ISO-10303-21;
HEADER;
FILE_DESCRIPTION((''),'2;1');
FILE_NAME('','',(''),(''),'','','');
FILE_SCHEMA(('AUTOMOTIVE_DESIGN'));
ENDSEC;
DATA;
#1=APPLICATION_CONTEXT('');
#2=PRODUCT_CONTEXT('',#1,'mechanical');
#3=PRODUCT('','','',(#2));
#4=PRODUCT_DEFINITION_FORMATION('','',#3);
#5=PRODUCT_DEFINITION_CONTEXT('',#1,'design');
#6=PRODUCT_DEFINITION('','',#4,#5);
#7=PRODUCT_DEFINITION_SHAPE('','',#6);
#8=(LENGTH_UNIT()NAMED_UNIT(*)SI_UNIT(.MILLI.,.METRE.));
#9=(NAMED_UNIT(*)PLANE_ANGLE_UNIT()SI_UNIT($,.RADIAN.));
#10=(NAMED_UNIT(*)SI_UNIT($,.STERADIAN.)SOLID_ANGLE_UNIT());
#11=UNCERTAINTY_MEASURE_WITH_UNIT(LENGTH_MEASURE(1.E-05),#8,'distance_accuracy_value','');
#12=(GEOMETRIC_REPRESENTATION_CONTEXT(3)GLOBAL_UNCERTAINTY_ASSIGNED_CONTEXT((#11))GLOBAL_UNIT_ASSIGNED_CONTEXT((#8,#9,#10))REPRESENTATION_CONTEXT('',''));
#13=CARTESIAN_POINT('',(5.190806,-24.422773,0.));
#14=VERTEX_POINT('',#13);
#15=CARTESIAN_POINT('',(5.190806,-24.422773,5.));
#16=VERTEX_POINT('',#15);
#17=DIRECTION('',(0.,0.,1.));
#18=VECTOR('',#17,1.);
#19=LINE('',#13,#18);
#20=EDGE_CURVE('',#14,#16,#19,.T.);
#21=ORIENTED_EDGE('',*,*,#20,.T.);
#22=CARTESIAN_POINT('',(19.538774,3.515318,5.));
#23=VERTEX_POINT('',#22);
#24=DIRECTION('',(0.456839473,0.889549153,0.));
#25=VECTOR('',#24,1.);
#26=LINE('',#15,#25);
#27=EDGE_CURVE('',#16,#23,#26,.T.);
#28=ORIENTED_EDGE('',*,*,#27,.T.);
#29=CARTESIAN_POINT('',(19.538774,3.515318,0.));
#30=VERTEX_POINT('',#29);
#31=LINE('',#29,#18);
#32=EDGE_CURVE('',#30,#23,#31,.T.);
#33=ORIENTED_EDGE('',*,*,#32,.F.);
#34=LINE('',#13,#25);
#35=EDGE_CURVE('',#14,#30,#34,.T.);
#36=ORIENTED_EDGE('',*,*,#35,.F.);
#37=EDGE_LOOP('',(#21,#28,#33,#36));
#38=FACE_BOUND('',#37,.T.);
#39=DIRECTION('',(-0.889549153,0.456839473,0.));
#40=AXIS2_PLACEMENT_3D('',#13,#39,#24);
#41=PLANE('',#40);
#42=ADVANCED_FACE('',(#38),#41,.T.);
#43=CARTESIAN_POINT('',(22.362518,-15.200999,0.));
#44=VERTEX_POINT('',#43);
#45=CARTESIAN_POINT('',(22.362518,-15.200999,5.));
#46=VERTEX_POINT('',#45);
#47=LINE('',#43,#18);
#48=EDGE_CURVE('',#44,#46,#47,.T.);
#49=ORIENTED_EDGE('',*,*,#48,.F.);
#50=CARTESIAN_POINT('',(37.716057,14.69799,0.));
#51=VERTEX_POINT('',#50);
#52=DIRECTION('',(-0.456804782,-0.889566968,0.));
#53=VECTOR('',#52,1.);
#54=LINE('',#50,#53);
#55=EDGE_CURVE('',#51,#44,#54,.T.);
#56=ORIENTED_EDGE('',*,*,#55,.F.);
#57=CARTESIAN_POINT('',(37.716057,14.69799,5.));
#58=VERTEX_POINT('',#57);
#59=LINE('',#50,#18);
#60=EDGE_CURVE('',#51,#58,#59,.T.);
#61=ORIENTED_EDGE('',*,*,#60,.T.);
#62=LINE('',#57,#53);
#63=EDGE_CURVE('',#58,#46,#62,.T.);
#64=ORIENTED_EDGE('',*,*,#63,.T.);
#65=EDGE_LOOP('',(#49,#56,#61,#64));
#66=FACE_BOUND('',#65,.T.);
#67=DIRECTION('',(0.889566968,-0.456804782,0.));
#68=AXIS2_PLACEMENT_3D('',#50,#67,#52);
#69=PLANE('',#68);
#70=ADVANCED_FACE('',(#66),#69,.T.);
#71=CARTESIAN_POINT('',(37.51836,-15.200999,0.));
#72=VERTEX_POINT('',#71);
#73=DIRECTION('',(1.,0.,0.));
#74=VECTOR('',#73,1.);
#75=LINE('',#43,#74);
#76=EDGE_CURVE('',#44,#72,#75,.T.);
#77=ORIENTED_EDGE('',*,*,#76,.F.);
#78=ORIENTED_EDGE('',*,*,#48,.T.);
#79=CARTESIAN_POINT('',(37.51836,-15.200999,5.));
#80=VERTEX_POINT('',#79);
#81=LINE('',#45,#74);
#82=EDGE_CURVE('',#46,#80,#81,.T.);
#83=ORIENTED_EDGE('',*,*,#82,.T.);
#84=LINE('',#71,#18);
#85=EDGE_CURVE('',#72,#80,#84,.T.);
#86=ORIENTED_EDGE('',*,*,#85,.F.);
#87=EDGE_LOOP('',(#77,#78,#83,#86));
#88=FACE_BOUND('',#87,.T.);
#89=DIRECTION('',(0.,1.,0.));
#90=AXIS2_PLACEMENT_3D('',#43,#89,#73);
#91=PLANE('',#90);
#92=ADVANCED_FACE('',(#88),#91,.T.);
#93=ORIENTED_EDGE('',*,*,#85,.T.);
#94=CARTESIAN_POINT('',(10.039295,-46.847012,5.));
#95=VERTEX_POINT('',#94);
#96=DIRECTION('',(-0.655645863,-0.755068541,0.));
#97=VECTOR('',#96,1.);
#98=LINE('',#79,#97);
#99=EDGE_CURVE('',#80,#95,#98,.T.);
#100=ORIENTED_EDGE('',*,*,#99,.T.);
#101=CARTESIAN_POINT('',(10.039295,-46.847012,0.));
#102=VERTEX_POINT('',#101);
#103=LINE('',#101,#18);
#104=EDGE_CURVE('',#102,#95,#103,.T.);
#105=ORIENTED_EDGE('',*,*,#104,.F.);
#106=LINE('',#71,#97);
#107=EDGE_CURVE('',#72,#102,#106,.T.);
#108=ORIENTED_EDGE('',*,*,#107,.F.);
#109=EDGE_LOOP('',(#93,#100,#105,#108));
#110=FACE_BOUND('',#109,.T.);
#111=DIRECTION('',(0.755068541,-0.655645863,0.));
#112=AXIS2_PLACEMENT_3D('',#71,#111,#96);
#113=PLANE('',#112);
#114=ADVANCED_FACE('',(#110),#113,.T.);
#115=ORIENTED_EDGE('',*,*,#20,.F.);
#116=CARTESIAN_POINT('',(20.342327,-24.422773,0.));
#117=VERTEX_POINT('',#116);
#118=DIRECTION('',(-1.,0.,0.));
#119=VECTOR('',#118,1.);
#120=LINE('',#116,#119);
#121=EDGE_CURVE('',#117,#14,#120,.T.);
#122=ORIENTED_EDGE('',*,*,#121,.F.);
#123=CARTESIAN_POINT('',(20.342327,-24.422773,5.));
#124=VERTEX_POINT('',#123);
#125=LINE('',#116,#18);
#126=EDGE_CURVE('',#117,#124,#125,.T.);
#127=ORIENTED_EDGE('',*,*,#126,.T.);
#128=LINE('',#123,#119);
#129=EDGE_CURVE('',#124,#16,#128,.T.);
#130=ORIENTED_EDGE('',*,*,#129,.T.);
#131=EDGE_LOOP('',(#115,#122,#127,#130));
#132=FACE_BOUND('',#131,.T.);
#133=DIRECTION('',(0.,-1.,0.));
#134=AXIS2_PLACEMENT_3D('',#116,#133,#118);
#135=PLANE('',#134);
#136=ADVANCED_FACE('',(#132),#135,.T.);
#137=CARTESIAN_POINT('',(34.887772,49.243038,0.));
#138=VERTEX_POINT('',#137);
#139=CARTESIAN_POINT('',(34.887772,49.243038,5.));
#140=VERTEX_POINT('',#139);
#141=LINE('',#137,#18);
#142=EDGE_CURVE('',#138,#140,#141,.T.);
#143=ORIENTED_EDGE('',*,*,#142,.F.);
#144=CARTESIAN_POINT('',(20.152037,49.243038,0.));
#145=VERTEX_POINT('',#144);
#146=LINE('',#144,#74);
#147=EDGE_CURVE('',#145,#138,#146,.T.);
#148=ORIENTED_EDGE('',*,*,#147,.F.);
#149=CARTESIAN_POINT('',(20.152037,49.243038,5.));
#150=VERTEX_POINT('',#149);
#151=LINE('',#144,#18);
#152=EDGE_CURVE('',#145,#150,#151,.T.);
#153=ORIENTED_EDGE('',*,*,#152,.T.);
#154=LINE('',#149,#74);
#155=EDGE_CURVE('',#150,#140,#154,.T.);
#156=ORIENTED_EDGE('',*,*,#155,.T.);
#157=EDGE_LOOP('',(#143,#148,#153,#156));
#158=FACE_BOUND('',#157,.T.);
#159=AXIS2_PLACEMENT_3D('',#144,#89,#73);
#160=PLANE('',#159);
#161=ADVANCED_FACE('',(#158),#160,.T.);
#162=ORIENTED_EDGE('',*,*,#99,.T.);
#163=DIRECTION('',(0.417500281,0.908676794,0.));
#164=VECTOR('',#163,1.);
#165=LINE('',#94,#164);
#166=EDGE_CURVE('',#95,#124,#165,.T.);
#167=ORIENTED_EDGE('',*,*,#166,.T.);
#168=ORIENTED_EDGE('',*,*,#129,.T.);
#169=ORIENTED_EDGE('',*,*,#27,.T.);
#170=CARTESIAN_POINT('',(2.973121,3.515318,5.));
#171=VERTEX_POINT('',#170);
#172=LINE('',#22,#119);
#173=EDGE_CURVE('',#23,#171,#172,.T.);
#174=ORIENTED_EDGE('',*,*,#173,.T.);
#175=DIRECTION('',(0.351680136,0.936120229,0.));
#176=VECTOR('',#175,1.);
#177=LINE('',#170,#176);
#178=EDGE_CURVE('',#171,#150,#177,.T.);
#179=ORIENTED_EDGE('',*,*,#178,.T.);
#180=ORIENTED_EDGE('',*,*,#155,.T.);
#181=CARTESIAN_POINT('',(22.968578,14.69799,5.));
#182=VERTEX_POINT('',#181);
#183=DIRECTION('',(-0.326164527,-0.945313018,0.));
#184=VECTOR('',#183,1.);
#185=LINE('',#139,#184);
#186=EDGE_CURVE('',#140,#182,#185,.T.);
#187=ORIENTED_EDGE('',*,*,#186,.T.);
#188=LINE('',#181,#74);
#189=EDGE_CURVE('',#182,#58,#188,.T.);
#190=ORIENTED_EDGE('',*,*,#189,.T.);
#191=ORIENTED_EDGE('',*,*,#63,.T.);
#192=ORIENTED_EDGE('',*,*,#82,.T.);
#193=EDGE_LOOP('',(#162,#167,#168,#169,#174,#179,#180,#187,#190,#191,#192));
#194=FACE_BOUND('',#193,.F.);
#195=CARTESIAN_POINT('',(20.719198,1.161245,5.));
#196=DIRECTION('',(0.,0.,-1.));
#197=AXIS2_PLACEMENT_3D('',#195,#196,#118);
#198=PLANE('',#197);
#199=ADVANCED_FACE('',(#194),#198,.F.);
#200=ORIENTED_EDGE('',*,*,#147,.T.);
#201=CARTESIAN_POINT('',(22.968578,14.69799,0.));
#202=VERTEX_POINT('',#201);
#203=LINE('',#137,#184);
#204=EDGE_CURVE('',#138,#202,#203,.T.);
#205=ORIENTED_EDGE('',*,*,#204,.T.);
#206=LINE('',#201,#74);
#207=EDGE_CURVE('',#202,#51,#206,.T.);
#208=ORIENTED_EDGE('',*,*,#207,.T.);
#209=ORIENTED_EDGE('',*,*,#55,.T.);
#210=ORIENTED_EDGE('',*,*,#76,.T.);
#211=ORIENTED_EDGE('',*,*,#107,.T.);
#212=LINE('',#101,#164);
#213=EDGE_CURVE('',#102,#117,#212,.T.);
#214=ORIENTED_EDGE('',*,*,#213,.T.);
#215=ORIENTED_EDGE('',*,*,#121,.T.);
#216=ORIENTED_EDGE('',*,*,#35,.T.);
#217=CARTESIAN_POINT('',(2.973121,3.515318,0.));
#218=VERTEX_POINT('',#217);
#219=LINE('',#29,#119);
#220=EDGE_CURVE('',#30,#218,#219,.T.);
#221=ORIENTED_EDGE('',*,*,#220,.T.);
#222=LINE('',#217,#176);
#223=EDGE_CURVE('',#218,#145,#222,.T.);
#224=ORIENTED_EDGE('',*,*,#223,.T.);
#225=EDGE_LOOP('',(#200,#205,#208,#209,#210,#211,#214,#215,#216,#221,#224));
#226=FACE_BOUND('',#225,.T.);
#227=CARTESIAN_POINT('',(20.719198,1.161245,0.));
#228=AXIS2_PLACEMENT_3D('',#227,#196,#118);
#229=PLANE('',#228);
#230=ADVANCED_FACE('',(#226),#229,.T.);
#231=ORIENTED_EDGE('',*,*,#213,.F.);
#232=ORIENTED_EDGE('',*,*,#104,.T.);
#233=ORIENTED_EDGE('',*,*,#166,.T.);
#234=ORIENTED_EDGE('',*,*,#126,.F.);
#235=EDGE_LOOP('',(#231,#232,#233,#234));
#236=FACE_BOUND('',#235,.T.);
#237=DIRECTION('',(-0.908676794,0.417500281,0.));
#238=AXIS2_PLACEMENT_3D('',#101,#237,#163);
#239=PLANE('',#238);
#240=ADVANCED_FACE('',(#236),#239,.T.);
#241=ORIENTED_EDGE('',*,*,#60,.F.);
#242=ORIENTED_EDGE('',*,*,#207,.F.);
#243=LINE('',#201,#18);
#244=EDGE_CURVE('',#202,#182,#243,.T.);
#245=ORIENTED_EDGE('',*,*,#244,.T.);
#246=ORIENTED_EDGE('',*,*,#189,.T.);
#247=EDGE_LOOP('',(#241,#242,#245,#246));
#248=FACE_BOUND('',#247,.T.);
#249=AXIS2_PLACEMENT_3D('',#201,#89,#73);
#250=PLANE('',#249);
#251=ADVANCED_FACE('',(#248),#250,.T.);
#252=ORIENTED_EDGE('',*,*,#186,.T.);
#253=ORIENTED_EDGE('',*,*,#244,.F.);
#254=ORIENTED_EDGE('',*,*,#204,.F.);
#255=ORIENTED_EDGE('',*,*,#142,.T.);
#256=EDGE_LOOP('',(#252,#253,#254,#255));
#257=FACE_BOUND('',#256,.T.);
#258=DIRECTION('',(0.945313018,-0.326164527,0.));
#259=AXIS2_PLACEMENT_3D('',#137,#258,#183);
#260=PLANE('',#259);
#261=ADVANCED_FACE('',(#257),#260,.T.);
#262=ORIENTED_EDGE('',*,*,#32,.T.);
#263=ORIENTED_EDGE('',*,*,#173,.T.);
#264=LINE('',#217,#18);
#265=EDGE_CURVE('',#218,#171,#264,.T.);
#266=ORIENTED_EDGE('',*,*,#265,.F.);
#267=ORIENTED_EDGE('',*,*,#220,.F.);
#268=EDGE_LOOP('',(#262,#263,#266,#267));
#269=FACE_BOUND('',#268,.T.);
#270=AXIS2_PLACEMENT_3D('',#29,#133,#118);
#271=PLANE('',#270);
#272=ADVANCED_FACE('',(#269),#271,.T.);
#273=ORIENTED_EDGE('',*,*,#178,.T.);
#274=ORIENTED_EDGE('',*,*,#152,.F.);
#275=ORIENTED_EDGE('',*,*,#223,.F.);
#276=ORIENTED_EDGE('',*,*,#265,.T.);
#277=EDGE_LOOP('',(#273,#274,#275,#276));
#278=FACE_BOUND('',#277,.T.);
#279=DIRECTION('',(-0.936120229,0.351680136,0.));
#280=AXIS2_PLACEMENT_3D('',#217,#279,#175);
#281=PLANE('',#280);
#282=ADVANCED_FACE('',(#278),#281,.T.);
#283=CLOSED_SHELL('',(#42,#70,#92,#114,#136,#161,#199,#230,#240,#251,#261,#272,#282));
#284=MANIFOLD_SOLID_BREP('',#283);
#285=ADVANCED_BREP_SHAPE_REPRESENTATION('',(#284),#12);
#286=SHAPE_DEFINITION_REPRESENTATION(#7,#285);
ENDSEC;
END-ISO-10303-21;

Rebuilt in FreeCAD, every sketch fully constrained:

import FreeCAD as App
import Part
import Sketcher
from FreeCAD import Vector
Q = App.Units.Quantity

doc = App.newDocument("Part")
params = doc.addObject("Spreadsheet::Sheet", "Params")
for row, (alias, value) in enumerate([
    ("pad1_length", "5 mm"),
], start=1):
    params.set(f"A{row}", alias)
    params.set(f"B{row}", "=" + value)
    params.setAlias(f"B{row}", alias)

body = doc.addObject("PartDesign::Body", "Body")

# Sketch on XY plane
sketch1 = body.newObject("Sketcher::SketchObject", "Sketch")
sketch1.AttachmentSupport = (doc.getObject("XY_Plane"), [""])
sketch1.MapMode = "FlatFace"
sketch1.addGeometry([
    Part.LineSegment(Vector(35, 49, 0), Vector(20, 49, 0)),  # 0
    Part.LineSegment(Vector(20, 49, 0), Vector(3, 4, 0)),  # 1
    Part.LineSegment(Vector(3, 4, 0), Vector(20, 4, 0)),  # 2
    Part.LineSegment(Vector(20, 4, 0), Vector(5, -24, 0)),  # 3
    Part.LineSegment(Vector(5, -24, 0), Vector(20, -24, 0)),  # 4
    Part.LineSegment(Vector(20, -24, 0), Vector(10, -47, 0)),  # 5
    Part.LineSegment(Vector(10, -47, 0), Vector(38, -15, 0)),  # 6
    Part.LineSegment(Vector(38, -15, 0), Vector(22, -15, 0)),  # 7
    Part.LineSegment(Vector(22, -15, 0), Vector(38, 15, 0)),  # 8
    Part.LineSegment(Vector(38, 15, 0), Vector(23, 15, 0)),  # 9
    Part.LineSegment(Vector(23, 15, 0), Vector(35, 49, 0)),  # 10
], False)
sketch1.addConstraint([
    Sketcher.Constraint("Coincident", 0, 2, 1, 1),
    Sketcher.Constraint("Coincident", 1, 2, 2, 1),
    Sketcher.Constraint("Coincident", 2, 2, 3, 1),
    Sketcher.Constraint("Coincident", 3, 2, 4, 1),
    Sketcher.Constraint("Coincident", 4, 2, 5, 1),
    Sketcher.Constraint("Coincident", 5, 2, 6, 1),
    Sketcher.Constraint("Coincident", 6, 2, 7, 1),
    Sketcher.Constraint("Coincident", 7, 2, 8, 1),
    Sketcher.Constraint("Coincident", 8, 2, 9, 1),
    Sketcher.Constraint("Coincident", 9, 2, 10, 1),
    Sketcher.Constraint("Coincident", 10, 2, 0, 1),
    Sketcher.Constraint("Horizontal", 0),
    Sketcher.Constraint("Horizontal", 2),
    Sketcher.Constraint("Horizontal", 4),
    Sketcher.Constraint("Horizontal", 7),
    Sketcher.Constraint("Horizontal", 9),
    Sketcher.Constraint("DistanceY", 6, 2, -1, 1, Q("15.200999 mm")),
    Sketcher.Constraint("Distance", 10, Q("36.543502 mm")),
    Sketcher.Constraint("DistanceX", 4, 1, 4, 2, Q("15.151521 mm")),
    Sketcher.Constraint("DistanceX", 9, 2, 9, 1, Q("14.747479 mm")),
    Sketcher.Constraint("DistanceX", 0, 2, 0, 1, Q("14.735735 mm")),
    Sketcher.Constraint("DistanceX", 2, 1, 2, 2, Q("16.565653 mm")),
    Sketcher.Constraint("DistanceX", 7, 2, 7, 1, Q("15.155842 mm")),
    Sketcher.Constraint("DistanceX", -1, 1, 1, 2, Q("2.973121 mm")),
    Sketcher.Constraint("DistanceY", -1, 1, 1, 2, Q("3.515318 mm")),
    Sketcher.Constraint("DistanceX", -1, 1, 6, 2, Q("37.51836 mm")),
    Sketcher.Constraint("DistanceY", -1, 1, 8, 2, Q("14.69799 mm")),
    Sketcher.Constraint("DistanceX", -1, 1, 9, 2, Q("22.968578 mm")),
    Sketcher.Constraint("DistanceX", -1, 1, 10, 2, Q("34.887772 mm")),
    Sketcher.Constraint("DistanceY", 3, 2, 1, 2, Q("27.938091 mm")),
    Sketcher.Constraint("DistanceX", 3, 2, 0, 2, Q("14.961231 mm")),
    Sketcher.Constraint("DistanceX", 3, 2, 5, 2, Q("4.848489 mm")),
    Sketcher.Constraint("DistanceY", 5, 2, 3, 2, Q("22.424239 mm")),
])
pad1 = body.newObject("PartDesign::Pad", "Pad")
pad1.Profile = sketch1
pad1.setExpression("Length", "Params.pad1_length")

doc.recompute()
